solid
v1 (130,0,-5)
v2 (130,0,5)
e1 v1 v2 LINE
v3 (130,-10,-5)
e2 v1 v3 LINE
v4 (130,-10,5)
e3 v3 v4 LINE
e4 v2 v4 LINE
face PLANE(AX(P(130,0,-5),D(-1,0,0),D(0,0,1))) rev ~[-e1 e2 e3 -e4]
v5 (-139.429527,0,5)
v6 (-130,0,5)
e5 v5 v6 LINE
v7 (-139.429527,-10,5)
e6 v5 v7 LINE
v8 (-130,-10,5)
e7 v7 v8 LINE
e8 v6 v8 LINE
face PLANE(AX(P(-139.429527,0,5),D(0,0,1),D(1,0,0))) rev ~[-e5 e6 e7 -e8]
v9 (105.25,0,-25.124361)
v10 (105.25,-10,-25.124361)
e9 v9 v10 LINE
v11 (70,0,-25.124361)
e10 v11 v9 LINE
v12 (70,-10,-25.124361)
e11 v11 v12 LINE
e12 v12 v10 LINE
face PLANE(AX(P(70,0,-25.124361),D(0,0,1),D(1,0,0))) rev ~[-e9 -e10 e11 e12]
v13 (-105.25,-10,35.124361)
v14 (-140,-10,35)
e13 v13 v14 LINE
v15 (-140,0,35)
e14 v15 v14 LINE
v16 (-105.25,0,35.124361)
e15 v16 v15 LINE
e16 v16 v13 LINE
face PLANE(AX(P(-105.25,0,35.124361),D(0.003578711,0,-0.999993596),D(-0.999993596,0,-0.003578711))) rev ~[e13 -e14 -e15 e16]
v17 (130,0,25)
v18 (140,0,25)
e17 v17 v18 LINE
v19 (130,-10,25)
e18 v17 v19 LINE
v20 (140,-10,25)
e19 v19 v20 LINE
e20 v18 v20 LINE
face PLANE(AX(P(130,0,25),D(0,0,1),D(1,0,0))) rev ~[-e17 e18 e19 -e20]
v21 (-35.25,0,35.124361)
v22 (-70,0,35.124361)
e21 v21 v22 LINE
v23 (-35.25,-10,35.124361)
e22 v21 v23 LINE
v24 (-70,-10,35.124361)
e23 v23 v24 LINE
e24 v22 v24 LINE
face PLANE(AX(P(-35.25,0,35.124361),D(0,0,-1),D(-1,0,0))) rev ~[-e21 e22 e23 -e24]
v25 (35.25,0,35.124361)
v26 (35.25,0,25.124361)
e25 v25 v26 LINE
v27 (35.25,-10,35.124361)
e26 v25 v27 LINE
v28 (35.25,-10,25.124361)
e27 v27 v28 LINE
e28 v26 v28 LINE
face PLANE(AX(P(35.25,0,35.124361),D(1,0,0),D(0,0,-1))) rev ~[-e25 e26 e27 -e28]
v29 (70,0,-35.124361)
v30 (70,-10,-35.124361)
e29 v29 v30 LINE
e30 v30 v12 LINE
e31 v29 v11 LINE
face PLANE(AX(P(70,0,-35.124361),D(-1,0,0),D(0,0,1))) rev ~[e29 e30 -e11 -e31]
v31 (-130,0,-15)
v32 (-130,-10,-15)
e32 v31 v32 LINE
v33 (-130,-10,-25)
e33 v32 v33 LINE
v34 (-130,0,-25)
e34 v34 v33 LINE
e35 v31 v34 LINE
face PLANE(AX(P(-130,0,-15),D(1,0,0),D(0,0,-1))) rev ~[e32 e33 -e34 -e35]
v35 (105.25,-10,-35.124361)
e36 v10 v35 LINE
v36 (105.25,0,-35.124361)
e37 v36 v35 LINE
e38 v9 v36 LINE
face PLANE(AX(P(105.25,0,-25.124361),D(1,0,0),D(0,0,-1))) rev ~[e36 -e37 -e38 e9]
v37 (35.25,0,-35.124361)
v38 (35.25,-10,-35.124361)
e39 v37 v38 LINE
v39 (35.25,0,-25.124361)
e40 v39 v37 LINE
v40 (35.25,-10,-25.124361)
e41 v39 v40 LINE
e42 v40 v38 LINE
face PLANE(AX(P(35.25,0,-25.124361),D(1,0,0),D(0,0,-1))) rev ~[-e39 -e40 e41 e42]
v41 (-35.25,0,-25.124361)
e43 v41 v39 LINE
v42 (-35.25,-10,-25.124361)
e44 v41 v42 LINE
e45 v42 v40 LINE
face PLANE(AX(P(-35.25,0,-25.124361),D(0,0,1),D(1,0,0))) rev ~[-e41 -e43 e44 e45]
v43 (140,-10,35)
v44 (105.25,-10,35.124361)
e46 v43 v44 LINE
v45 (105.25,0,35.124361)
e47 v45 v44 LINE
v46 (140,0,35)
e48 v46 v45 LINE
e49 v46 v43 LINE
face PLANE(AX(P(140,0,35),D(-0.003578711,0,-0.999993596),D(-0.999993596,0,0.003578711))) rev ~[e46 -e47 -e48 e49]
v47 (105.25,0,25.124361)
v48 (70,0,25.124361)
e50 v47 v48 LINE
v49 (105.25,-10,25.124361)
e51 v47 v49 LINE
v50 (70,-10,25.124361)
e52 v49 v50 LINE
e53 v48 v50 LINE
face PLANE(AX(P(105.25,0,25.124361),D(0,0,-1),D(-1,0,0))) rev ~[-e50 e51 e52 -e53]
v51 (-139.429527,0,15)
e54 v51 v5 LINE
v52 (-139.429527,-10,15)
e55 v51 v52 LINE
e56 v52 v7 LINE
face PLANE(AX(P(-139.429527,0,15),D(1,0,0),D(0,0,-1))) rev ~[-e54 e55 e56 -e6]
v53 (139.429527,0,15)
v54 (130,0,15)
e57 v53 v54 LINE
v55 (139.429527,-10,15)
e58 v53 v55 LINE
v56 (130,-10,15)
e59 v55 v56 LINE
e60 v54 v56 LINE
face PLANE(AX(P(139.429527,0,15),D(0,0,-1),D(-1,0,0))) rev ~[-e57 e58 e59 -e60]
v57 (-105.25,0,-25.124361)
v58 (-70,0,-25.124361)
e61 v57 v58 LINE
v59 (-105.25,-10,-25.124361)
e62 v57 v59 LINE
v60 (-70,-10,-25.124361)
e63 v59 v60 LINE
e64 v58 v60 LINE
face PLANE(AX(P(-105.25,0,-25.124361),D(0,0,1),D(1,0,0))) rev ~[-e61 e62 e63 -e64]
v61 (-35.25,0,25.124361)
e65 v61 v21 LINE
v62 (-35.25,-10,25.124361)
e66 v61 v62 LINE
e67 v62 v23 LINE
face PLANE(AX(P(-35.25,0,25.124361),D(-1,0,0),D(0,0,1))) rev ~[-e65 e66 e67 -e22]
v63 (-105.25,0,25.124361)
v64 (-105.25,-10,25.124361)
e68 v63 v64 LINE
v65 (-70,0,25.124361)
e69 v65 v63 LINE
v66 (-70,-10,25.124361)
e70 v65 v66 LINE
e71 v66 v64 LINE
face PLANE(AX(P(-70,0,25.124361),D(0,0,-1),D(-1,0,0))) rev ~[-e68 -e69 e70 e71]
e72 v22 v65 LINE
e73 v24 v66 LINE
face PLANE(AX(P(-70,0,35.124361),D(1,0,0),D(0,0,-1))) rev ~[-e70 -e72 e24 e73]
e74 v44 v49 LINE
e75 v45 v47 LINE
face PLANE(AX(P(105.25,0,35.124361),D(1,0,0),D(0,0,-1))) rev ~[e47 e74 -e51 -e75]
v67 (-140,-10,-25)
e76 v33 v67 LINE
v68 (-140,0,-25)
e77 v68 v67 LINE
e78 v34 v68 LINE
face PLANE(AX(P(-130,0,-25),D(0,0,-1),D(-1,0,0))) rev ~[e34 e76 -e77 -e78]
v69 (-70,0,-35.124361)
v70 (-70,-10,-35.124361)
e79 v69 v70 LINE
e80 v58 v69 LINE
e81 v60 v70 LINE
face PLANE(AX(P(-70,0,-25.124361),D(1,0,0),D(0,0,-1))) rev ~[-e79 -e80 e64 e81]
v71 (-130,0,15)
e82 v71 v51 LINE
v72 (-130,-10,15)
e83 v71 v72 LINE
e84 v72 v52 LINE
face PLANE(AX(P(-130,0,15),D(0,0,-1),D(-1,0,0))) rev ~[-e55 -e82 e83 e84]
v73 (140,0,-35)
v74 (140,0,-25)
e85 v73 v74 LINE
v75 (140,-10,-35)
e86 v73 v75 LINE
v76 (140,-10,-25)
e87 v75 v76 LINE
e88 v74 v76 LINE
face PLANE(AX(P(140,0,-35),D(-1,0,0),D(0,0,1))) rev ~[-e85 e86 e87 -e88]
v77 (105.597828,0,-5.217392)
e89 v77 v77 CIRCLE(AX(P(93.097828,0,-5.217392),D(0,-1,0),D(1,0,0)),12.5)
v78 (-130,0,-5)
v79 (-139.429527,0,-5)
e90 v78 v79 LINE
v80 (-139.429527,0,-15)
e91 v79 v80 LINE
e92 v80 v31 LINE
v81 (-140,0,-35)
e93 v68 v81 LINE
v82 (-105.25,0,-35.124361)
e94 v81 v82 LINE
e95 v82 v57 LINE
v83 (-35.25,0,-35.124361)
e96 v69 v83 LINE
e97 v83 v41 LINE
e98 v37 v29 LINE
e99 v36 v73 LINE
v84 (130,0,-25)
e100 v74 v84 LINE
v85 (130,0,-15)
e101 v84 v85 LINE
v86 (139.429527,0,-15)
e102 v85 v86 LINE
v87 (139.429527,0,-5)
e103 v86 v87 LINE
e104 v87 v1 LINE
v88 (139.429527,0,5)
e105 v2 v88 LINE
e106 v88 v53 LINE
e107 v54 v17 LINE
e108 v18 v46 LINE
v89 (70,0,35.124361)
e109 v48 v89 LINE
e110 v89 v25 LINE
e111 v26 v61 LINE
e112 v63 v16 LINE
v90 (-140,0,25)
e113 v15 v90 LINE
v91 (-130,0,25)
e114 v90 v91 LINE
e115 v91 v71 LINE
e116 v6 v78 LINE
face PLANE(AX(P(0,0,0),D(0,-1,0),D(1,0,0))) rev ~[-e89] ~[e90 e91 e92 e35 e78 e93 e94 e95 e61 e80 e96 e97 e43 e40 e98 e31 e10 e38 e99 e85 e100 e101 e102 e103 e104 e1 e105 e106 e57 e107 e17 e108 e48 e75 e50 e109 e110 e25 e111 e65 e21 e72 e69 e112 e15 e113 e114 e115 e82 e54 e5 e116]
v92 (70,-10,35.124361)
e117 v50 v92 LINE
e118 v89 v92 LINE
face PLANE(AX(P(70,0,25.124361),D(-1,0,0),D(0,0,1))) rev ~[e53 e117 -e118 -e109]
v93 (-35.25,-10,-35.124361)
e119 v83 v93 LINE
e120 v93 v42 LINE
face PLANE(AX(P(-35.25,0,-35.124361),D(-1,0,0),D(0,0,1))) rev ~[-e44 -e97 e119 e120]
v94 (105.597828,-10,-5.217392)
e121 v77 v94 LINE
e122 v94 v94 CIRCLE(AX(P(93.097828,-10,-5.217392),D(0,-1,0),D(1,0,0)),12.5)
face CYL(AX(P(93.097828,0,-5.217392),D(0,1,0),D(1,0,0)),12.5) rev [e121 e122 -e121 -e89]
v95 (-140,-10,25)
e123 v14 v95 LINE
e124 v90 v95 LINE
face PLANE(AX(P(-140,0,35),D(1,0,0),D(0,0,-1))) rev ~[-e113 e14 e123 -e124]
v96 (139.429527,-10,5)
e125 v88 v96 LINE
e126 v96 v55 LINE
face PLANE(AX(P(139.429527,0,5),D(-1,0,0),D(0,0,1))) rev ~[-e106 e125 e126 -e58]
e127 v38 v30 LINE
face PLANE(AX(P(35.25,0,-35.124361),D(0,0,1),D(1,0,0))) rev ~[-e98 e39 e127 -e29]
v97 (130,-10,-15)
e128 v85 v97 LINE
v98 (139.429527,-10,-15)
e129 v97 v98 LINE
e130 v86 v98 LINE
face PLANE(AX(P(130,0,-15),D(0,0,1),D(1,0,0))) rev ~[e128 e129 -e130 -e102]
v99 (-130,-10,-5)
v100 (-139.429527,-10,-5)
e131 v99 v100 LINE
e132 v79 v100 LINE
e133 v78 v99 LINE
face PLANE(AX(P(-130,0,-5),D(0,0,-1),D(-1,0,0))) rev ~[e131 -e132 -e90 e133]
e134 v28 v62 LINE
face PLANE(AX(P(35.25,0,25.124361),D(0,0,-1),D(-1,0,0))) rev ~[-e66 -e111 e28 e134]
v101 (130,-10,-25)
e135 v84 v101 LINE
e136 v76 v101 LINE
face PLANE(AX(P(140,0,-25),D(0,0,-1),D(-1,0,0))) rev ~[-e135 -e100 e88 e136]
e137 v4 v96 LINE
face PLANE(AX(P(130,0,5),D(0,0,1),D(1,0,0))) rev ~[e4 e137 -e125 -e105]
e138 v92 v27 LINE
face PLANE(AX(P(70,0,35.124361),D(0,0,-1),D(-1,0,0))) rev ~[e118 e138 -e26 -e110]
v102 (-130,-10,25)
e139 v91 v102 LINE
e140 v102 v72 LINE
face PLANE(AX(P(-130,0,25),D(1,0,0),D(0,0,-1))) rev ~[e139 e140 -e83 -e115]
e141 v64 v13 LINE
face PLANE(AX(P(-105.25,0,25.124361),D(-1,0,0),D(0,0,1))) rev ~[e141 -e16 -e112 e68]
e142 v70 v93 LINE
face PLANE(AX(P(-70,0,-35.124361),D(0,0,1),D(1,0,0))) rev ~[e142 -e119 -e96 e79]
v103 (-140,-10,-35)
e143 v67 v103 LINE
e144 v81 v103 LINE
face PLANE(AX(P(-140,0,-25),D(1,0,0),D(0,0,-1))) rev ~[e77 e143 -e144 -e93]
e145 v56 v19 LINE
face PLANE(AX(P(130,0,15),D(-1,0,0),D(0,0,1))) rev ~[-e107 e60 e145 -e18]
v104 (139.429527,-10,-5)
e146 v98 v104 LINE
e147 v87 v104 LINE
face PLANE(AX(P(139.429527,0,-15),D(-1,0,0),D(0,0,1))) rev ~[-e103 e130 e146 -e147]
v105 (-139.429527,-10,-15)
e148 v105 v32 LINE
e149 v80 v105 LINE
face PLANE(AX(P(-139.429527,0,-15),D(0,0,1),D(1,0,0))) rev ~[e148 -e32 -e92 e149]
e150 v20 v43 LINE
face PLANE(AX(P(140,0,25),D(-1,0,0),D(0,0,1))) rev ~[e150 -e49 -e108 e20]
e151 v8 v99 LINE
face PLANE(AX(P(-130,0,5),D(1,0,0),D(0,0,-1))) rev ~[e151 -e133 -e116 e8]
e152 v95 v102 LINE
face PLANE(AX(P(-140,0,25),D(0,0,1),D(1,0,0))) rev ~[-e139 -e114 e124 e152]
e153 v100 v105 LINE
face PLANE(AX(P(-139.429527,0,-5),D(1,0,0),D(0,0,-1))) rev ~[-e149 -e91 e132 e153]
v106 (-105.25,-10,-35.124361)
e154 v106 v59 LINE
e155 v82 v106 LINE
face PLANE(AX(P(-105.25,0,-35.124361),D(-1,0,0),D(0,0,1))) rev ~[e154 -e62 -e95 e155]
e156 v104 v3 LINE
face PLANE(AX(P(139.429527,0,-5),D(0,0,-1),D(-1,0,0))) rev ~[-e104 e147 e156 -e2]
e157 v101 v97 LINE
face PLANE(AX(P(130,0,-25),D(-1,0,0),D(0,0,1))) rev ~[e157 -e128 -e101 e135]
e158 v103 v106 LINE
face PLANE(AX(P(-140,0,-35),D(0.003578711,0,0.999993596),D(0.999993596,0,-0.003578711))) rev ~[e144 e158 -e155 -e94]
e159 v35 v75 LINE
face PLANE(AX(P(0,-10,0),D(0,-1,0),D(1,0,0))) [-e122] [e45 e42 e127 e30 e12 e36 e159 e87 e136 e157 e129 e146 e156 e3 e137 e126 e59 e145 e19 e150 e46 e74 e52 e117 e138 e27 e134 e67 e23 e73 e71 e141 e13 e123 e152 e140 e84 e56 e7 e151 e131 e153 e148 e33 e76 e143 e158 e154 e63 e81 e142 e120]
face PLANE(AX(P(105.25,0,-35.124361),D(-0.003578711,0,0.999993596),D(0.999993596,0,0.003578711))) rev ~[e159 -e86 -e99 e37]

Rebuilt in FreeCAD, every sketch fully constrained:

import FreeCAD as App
import Part
import Sketcher

V = App.Vector

doc = App.newDocument("Part")
body = doc.addObject("PartDesign::Body", "Body")

# Sketch on XZ plane
sketch1 = body.newObject("Sketcher::SketchObject", "Sketch")
sketch1.AttachmentSupport = (doc.getObject("XZ_Plane"), [""])
sketch1.MapMode = "FlatFace"
sketch1.addGeometry([
    Part.LineSegment(V(105, -35, 0), V(140, -35, 0)),  # 0
    Part.LineSegment(V(140, -35, 0), V(140, -25, 0)),  # 1
    Part.LineSegment(V(140, -25, 0), V(130, -25, 0)),  # 2
    Part.LineSegment(V(130, -25, 0), V(130, -15, 0)),  # 3
    Part.LineSegment(V(130, -15, 0), V(139, -15, 0)),  # 4
    Part.LineSegment(V(139, -15, 0), V(139, -5, 0)),  # 5
    Part.LineSegment(V(139, -5, 0), V(130, -5, 0)),  # 6
    Part.LineSegment(V(130, -5, 0), V(130, 5, 0)),  # 7
    Part.LineSegment(V(130, 5, 0), V(139, 5, 0)),  # 8
    Part.LineSegment(V(139, 5, 0), V(139, 15, 0)),  # 9
    Part.LineSegment(V(139, 15, 0), V(130, 15, 0)),  # 10
    Part.LineSegment(V(130, 15, 0), V(130, 25, 0)),  # 11
    Part.LineSegment(V(130, 25, 0), V(140, 25, 0)),  # 12
    Part.LineSegment(V(140, 25, 0), V(140, 35, 0)),  # 13
    Part.LineSegment(V(140, 35, 0), V(105, 35, 0)),  # 14
    Part.LineSegment(V(105, 35, 0), V(105, 25, 0)),  # 15
    Part.LineSegment(V(105, 25, 0), V(70, 25, 0)),  # 16
    Part.LineSegment(V(70, 25, 0), V(70, 35, 0)),  # 17
    Part.LineSegment(V(70, 35, 0), V(35, 35, 0)),  # 18
    Part.LineSegment(V(35, 35, 0), V(35, 25, 0)),  # 19
    Part.LineSegment(V(35, 25, 0), V(-35, 25, 0)),  # 20
    Part.LineSegment(V(-35, 25, 0), V(-35, 35, 0)),  # 21
    Part.LineSegment(V(-35, 35, 0), V(-70, 35, 0)),  # 22
    Part.LineSegment(V(-70, 35, 0), V(-70, 25, 0)),  # 23
    Part.LineSegment(V(-70, 25, 0), V(-105, 25, 0)),  # 24
    Part.LineSegment(V(-105, 25, 0), V(-105, 35, 0)),  # 25
    Part.LineSegment(V(-105, 35, 0), V(-140, 35, 0)),  # 26
    Part.LineSegment(V(-140, 35, 0), V(-140, 25, 0)),  # 27
    Part.LineSegment(V(-140, 25, 0), V(-130, 25, 0)),  # 28
    Part.LineSegment(V(-130, 25, 0), V(-130, 15, 0)),  # 29
    Part.LineSegment(V(-130, 15, 0), V(-139, 15, 0)),  # 30
    Part.LineSegment(V(-139, 15, 0), V(-139, 5, 0)),  # 31
    Part.LineSegment(V(-139, 5, 0), V(-130, 5, 0)),  # 32
    Part.LineSegment(V(-130, 5, 0), V(-130, -5, 0)),  # 33
    Part.LineSegment(V(-130, -5, 0), V(-139, -5, 0)),  # 34
    Part.LineSegment(V(-139, -5, 0), V(-139, -15, 0)),  # 35
    Part.LineSegment(V(-139, -15, 0), V(-130, -15, 0)),  # 36
    Part.LineSegment(V(-130, -15, 0), V(-130, -25, 0)),  # 37
    Part.LineSegment(V(-130, -25, 0), V(-140, -25, 0)),  # 38
    Part.LineSegment(V(-140, -25, 0), V(-140, -35, 0)),  # 39
    Part.LineSegment(V(-140, -35, 0), V(-105, -35, 0)),  # 40
    Part.LineSegment(V(-105, -35, 0), V(-105, -25, 0)),  # 41
    Part.LineSegment(V(-105, -25, 0), V(-70, -25, 0)),  # 42
    Part.LineSegment(V(-70, -25, 0), V(-70, -35, 0)),  # 43
    Part.LineSegment(V(-70, -35, 0), V(-35, -35, 0)),  # 44
    Part.LineSegment(V(-35, -35, 0), V(-35, -25, 0)),  # 45
    Part.LineSegment(V(-35, -25, 0), V(35, -25, 0)),  # 46
    Part.LineSegment(V(35, -25, 0), V(35, -35, 0)),  # 47
    Part.LineSegment(V(35, -35, 0), V(70, -35, 0)),  # 48
    Part.LineSegment(V(70, -35, 0), V(70, -25, 0)),  # 49
    Part.LineSegment(V(70, -25, 0), V(105, -25, 0)),  # 50
    Part.LineSegment(V(105, -25, 0), V(105, -35, 0)),  # 51
    Part.Circle(V(93, -5, 0), V(0, 0, 1), 12),  # 52
], False)
sketch1.addConstraint([
    Sketcher.Constraint("Coincident", 0, 2, 1, 1),
    Sketcher.Constraint("Coincident", 1, 2, 2, 1),
    Sketcher.Constraint("Coincident", 2, 2, 3, 1),
    Sketcher.Constraint("Coincident", 3, 2, 4, 1),
    Sketcher.Constraint("Coincident", 4, 2, 5, 1),
    Sketcher.Constraint("Coincident", 5, 2, 6, 1),
    Sketcher.Constraint("Coincident", 6, 2, 7, 1),
    Sketcher.Constraint("Coincident", 7, 2, 8, 1),
    Sketcher.Constraint("Coincident", 8, 2, 9, 1),
    Sketcher.Constraint("Coincident", 9, 2, 10, 1),
    Sketcher.Constraint("Coincident", 10, 2, 11, 1),
    Sketcher.Constraint("Coincident", 11, 2, 12, 1),
    Sketcher.Constraint("Coincident", 12, 2, 13, 1),
    Sketcher.Constraint("Coincident", 13, 2, 14, 1),
    Sketcher.Constraint("Coincident", 14, 2, 15, 1),
    Sketcher.Constraint("Coincident", 15, 2, 16, 1),
    Sketcher.Constraint("Coincident", 16, 2, 17, 1),
    Sketcher.Constraint("Coincident", 17, 2, 18, 1),
    Sketcher.Constraint("Coincident", 18, 2, 19, 1),
    Sketcher.Constraint("Coincident", 19, 2, 20, 1),
    Sketcher.Constraint("Coincident", 20, 2, 21, 1),
    Sketcher.Constraint("Coincident", 21, 2, 22, 1),
    Sketcher.Constraint("Coincident", 22, 2, 23, 1),
    Sketcher.Constraint("Coincident", 23, 2, 24, 1),
    Sketcher.Constraint("Coincident", 24, 2, 25, 1),
    Sketcher.Constraint("Coincident", 25, 2, 26, 1),
    Sketcher.Constraint("Coincident", 26, 2, 27, 1),
    Sketcher.Constraint("Coincident", 27, 2, 28, 1),
    Sketcher.Constraint("Coincident", 28, 2, 29, 1),
    Sketcher.Constraint("Coincident", 29, 2, 30, 1),
    Sketcher.Constraint("Coincident", 30, 2, 31, 1),
    Sketcher.Constraint("Coincident", 31, 2, 32, 1),
    Sketcher.Constraint("Coincident", 32, 2, 33, 1),
    Sketcher.Constraint("Coincident", 33, 2, 34, 1),
    Sketcher.Constraint("Coincident", 34, 2, 35, 1),
    Sketcher.Constraint("Coincident", 35, 2, 36, 1),
    Sketcher.Constraint("Coincident", 36, 2, 37, 1),
    Sketcher.Constraint("Coincident", 37, 2, 38, 1),
    Sketcher.Constraint("Coincident", 38, 2, 39, 1),
    Sketcher.Constraint("Coincident", 39, 2, 40, 1),
    Sketcher.Constraint("Coincident", 40, 2, 41, 1),
    Sketcher.Constraint("Coincident", 41, 2, 42, 1),
    Sketcher.Constraint("Coincident", 42, 2, 43, 1),
    Sketcher.Constraint("Coincident", 43, 2, 44, 1),
    Sketcher.Constraint("Coincident", 44, 2, 45, 1),
    Sketcher.Constraint("Coincident", 45, 2, 46, 1),
    Sketcher.Constraint("Coincident", 46, 2, 47, 1),
    Sketcher.Constraint("Coincident", 47, 2, 48, 1),
    Sketcher.Constraint("Coincident", 48, 2, 49, 1),
    Sketcher.Constraint("Coincident", 49, 2, 50, 1),
    Sketcher.Constraint("Coincident", 50, 2, 51, 1),
    Sketcher.Constraint("Coincident", 51, 2, 0, 1),
    Sketcher.Constraint("Vertical", 1),
    Sketcher.Constraint("Horizontal", 2),
    Sketcher.Constraint("Vertical", 3),
    Sketcher.Constraint("Horizontal", 4),
    Sketcher.Constraint("Vertical", 5),
    Sketcher.Constraint("Horizontal", 6),
    Sketcher.Constraint("Vertical", 7),
    Sketcher.Constraint("Horizontal", 8),
    Sketcher.Constraint("Vertical", 9),
    Sketcher.Constraint("Horizontal", 10),
    Sketcher.Constraint("Vertical", 11),
    Sketcher.Constraint("Horizontal", 12),
    Sketcher.Constraint("Vertical", 13),
    Sketcher.Constraint("Vertical", 15),
    Sketcher.Constraint("Horizontal", 16),
    Sketcher.Constraint("Vertical", 17),
    Sketcher.Constraint("Horizontal", 18),
    Sketcher.Constraint("Vertical", 19),
    Sketcher.Constraint("Horizontal", 20),
    Sketcher.Constraint("Vertical", 21),
    Sketcher.Constraint("Horizontal", 22),
    Sketcher.Constraint("Vertical", 23),
    Sketcher.Constraint("Horizontal", 24),
    Sketcher.Constraint("Vertical", 25),
    Sketcher.Constraint("Vertical", 27),
    Sketcher.Constraint("Horizontal", 28),
    Sketcher.Constraint("Vertical", 29),
    Sketcher.Constraint("Horizontal", 30),
    Sketcher.Constraint("Vertical", 31),
    Sketcher.Constraint("Horizontal", 32),
    Sketcher.Constraint("Vertical", 33),
    Sketcher.Constraint("Horizontal", 34),
    Sketcher.Constraint("Vertical", 35),
    Sketcher.Constraint("Horizontal", 36),
    Sketcher.Constraint("Vertical", 37),
    Sketcher.Constraint("Horizontal", 38),
    Sketcher.Constraint("Vertical", 39),
    Sketcher.Constraint("Vertical", 41),
    Sketcher.Constraint("Horizontal", 42),
    Sketcher.Constraint("Vertical", 43),
    Sketcher.Constraint("Horizontal", 44),
    Sketcher.Constraint("Vertical", 45),
    Sketcher.Constraint("Horizontal", 46),
    Sketcher.Constraint("Vertical", 47),
    Sketcher.Constraint("Horizontal", 48),
    Sketcher.Constraint("Vertical", 49),
    Sketcher.Constraint("Horizontal", 50),
    Sketcher.Constraint("Vertical", 51),
    Sketcher.Constraint("Symmetric", 0, 2, 26, 2, -1, 1),
    Sketcher.Constraint("Symmetric", 2, 2, 28, 2, -1, 1),
    Sketcher.Constraint("Symmetric", 4, 2, 30, 2, -1, 1),
    Sketcher.Constraint("Symmetric", 6, 2, 32, 2, -1, 1),
    Sketcher.Constraint("Symmetric", 8, 2, 34, 2, -1, 1),
    Sketcher.Constraint("Symmetric", 10, 2, 36, 2, -1, 1),
    Sketcher.Constraint("Symmetric", 12, 2, 38, 2, -1, 1),
    Sketcher.Constraint("Symmetric", 14, 2, 40, 2, -1, 1),
    Sketcher.Constraint("Symmetric", 16, 2, 42, 2, -1, 1),
    Sketcher.Constraint("Symmetric", 18, 2, 44, 2, -1, 1),
    Sketcher.Constraint("Symmetric", 20, 2, 46, 2, -1, 1),
    Sketcher.Constraint("Symmetric", 22, 2, 48, 2, -1, 1),
    Sketcher.Constraint("Symmetric", 24, 2, 50, 2, -1, 1),
    Sketcher.Constraint("Symmetric", 18, 2, 21, 2, -2),
    Sketcher.Constraint("Symmetric", 16, 2, 23, 2, -2),
    Sketcher.Constraint("Symmetric", 14, 2, 25, 2, -2),
    Sketcher.Constraint("Symmetric", 13, 2, 26, 2, -2),
    Sketcher.Constraint("Symmetric", 11, 2, 28, 2, -2),
    Sketcher.Constraint("Symmetric", 9, 2, 30, 2, -2),
    Sketcher.Constraint("Parallel", 0, 26),
    Sketcher.Constraint("Parallel", 14, 40),
    Sketcher.Constraint("Horizontal", 14, 2, 17, 2),
    Sketcher.Constraint("Horizontal", 16, 2, 19, 2),
    Sketcher.Constraint("Horizontal", 8, 2, 31, 2),
    Sketcher.Constraint("Vertical", 3, 2, 6, 2),
    Sketcher.Constraint("Equal", 38, 1),
    Sketcher.Constraint("Equal", 1, 3),
    Sketcher.Constraint("Equal", 3, 5),
    Sketcher.Constraint("Equal", 5, 7),
    Sketcher.Constraint("Equal", 13, 15),
    Sketcher.Constraint("Diameter", 52, 25.0),
    Sketcher.Constraint("DistanceX", 2, 2, 2, 1, 10.0),
    Sketcher.Constraint("DistanceX", 20, 2, 20, 1, 70.5),
    Sketcher.Constraint("DistanceX", -1, 1, 0, 2, 140.0),
    Sketcher.Constraint("DistanceX", -1, 1, 16, 2, 70.0),
    Sketcher.Constraint("DistanceX", 18, 2, 14, 2, 70.0),
    Sketcher.Constraint("DistanceX", 52, 3, 4, 2, 46.331699),
    Sketcher.Constraint("DistanceX", 4, 1, 4, 2, 9.429527),
    Sketcher.Constraint("DistanceY", -1, 1, 14, 2, 35.124361),
    Sketcher.Constraint("DistanceY", 0, 2, 52, 3, 29.782608),
])
pad1 = body.newObject("PartDesign::Pad", "Pad")
pad1.Profile = sketch1
pad1.Length = 10

doc.recompute()
